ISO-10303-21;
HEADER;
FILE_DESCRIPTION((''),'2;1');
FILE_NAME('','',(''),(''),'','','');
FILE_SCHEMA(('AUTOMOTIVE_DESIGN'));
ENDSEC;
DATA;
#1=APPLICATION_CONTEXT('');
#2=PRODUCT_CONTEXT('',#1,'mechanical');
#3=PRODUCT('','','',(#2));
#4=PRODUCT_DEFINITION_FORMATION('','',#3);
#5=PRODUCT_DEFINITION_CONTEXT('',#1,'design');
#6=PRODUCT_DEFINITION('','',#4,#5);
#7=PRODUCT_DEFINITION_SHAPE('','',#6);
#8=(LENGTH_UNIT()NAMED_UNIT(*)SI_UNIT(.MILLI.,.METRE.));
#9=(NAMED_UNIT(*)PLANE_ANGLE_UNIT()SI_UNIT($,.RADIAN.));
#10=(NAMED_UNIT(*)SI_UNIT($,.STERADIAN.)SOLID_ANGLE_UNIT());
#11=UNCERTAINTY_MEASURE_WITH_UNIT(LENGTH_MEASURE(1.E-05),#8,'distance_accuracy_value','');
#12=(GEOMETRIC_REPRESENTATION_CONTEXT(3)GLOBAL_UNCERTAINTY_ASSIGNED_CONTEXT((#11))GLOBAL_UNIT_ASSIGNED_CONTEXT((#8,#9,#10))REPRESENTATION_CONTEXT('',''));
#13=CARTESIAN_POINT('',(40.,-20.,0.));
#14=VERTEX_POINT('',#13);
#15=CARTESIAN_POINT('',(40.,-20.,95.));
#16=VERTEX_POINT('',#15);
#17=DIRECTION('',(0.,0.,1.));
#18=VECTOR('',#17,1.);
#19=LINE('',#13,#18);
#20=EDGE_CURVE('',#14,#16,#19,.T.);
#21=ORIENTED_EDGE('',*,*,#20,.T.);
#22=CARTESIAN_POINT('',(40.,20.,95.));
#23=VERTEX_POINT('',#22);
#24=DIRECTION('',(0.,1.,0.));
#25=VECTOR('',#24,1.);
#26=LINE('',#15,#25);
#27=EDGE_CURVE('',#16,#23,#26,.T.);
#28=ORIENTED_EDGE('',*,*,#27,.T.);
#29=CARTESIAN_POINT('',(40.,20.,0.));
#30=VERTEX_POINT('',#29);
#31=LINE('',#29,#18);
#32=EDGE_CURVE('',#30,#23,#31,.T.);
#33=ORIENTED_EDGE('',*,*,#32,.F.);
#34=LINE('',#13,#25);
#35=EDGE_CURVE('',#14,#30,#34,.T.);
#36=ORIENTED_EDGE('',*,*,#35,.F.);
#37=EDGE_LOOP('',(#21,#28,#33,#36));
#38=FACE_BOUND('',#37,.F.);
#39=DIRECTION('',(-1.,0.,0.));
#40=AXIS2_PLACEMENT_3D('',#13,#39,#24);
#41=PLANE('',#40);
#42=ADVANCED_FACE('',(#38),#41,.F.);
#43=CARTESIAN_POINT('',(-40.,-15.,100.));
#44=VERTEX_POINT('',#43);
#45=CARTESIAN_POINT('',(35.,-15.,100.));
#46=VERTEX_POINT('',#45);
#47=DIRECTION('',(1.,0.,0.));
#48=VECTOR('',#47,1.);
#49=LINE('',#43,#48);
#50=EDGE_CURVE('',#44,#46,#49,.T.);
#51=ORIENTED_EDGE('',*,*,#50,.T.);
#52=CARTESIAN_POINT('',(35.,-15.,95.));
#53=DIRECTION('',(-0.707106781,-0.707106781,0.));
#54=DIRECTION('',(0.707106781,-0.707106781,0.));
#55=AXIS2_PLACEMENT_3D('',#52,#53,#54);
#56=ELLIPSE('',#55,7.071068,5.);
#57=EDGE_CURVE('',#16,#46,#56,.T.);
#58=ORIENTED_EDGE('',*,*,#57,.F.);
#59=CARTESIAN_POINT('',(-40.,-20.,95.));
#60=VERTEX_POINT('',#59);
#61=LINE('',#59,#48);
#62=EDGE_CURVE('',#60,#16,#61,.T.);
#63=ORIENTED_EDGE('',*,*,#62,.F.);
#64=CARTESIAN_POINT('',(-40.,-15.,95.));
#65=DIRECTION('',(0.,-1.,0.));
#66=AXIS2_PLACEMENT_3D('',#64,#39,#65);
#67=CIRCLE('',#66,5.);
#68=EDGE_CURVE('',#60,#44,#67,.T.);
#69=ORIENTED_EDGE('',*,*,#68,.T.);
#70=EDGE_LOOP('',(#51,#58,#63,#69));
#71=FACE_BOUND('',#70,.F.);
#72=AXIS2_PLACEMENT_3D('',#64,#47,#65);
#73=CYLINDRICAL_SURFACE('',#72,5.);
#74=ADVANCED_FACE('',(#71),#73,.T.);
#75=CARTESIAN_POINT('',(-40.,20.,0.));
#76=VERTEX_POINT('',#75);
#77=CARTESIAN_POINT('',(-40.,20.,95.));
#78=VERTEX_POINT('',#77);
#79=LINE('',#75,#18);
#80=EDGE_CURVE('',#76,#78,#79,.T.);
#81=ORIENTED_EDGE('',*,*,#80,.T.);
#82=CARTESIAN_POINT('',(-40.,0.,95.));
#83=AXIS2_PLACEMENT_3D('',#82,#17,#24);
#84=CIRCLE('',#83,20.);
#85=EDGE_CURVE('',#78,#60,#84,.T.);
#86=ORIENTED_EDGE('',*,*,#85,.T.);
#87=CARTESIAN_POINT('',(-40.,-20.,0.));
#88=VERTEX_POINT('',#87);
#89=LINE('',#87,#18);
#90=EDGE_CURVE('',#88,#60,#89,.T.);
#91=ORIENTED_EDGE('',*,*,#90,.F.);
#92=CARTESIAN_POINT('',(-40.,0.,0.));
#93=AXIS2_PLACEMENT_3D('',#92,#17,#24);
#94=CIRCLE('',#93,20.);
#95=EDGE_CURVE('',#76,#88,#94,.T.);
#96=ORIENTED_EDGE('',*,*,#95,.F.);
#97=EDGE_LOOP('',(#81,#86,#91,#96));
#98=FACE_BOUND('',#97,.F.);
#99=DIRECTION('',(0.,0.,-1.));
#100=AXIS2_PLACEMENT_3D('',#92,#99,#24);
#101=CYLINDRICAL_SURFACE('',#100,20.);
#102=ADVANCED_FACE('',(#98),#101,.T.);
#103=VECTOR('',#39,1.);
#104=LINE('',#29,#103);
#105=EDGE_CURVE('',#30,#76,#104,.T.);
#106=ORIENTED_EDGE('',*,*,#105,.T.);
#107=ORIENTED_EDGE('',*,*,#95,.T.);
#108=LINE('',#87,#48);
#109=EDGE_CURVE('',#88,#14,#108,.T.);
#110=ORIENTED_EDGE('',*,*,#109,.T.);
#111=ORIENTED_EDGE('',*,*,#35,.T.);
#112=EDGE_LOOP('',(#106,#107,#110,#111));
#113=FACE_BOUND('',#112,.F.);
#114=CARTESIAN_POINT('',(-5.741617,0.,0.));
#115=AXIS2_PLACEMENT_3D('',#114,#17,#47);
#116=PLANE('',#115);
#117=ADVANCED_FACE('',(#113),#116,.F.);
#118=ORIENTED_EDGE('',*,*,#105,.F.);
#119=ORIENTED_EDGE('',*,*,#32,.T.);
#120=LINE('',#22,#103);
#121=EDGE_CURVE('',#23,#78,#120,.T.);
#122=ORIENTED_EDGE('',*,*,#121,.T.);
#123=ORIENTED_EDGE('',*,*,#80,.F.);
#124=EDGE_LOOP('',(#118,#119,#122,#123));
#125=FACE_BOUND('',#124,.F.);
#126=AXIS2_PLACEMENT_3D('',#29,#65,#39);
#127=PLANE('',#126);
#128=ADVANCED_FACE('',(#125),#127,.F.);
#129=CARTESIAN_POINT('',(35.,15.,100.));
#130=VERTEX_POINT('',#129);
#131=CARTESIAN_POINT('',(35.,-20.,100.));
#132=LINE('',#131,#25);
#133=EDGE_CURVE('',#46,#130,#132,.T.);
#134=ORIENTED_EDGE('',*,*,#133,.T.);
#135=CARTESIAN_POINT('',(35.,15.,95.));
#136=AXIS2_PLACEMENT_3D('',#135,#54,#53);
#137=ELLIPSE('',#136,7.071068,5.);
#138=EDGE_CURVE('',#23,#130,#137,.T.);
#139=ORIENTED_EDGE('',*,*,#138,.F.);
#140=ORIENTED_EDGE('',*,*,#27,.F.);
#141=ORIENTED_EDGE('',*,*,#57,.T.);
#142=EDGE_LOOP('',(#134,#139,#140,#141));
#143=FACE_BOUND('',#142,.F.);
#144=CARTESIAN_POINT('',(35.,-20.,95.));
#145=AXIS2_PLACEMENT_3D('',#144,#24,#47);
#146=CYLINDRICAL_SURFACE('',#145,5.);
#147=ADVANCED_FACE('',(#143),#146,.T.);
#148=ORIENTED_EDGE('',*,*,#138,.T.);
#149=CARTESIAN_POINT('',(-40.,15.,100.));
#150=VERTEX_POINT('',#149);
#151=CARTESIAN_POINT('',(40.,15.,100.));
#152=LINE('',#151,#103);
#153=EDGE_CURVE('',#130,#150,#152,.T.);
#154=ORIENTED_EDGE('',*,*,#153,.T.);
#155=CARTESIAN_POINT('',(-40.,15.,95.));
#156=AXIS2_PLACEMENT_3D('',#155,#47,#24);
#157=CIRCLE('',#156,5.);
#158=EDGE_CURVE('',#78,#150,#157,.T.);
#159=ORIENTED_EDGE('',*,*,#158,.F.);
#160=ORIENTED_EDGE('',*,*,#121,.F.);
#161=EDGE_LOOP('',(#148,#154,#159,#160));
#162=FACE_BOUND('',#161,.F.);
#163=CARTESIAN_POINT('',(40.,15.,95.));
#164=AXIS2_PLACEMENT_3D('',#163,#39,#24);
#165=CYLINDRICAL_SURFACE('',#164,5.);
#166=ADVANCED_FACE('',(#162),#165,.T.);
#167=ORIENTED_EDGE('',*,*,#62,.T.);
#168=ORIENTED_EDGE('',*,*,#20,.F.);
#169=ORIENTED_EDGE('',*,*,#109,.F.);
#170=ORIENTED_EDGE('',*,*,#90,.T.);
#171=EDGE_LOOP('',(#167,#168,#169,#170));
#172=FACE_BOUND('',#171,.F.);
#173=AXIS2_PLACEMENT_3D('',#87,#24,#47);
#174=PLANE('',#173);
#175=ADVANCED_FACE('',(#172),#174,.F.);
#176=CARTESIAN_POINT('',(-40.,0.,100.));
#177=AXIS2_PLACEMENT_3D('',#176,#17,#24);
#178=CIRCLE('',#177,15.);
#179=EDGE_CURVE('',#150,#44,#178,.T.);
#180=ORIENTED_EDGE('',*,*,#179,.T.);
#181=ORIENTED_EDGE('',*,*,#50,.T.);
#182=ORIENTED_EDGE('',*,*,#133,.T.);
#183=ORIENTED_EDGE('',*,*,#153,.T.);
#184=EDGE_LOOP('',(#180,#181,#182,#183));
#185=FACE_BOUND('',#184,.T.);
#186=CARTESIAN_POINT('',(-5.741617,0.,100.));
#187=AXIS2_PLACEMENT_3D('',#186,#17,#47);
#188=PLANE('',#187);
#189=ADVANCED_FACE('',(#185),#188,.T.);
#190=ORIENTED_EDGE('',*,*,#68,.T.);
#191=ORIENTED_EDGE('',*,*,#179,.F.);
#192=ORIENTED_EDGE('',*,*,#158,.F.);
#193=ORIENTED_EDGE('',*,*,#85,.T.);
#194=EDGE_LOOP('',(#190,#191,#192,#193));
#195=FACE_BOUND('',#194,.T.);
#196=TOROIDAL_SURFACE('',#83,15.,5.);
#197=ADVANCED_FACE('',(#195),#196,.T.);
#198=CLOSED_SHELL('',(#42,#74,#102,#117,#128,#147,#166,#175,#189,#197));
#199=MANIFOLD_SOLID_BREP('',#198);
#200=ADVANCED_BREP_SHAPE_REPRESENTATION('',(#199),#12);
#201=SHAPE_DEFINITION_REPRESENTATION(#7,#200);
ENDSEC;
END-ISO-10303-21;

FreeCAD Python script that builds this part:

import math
import FreeCAD as App
import Part
import Sketcher

V = App.Vector
Q = App.Units.Quantity


def edges_at(feature, points):
    """Names of the edges that pass closest to the given points."""
    edges = feature.Shape.Edges
    near = lambda p: min(range(len(edges)), key=lambda i: edges[i].distToShape(Part.Vertex(*p))[0])
    return sorted({f"Edge{near(p) + 1}" for p in points})

doc = App.newDocument("Part")
body = doc.addObject("PartDesign::Body", "Body")

# Sketch on XY plane
sketch1 = body.newObject("Sketcher::SketchObject", "Sketch")
sketch1.AttachmentSupport = (doc.getObject("XY_Plane"), [""])
sketch1.MapMode = "FlatFace"
sketch1.addGeometry([
    Part.LineSegment(V(40, 20, 0), V(-40, 20, 0)),
    Part.ArcOfCircle(Part.Circle(V(-40, 0, 0), V(0, 0, 1), 20), math.radians(90), math.radians(270)),
    Part.LineSegment(V(-40, -20, 0), V(40, -20, 0)),
    Part.LineSegment(V(40, -20, 0), V(40, 20, 0)),
], False)
sketch1.addConstraint([
    Sketcher.Constraint("Tangent", 0, 2, 1, 1),
    Sketcher.Constraint("Tangent", 1, 2, 2, 1),
    Sketcher.Constraint("Coincident", 2, 2, 3, 1),
    Sketcher.Constraint("Coincident", 3, 2, 0, 1),
    Sketcher.Constraint("Horizontal", 0),
    Sketcher.Constraint("Horizontal", 2),
    Sketcher.Constraint("Vertical", 3),
    Sketcher.Constraint("Symmetric", 0, 2, 2, 2, -1, 1),
    Sketcher.Constraint("Radius", 1, Q("20 mm")),
    Sketcher.Constraint("DistanceX", 0, 2, 0, 1, Q("80 mm")),
])
pad1 = body.newObject("PartDesign::Pad", "Pad")
pad1.Profile = sketch1
pad1.Length = 100
doc.recompute()

fillet = body.newObject("PartDesign::Fillet", "Fillet")
fillet.Base = (pad1, edges_at(pad1, [(0, 20, 100), (40, 0, 100)]))
fillet.Radius = 5

doc.recompute()
